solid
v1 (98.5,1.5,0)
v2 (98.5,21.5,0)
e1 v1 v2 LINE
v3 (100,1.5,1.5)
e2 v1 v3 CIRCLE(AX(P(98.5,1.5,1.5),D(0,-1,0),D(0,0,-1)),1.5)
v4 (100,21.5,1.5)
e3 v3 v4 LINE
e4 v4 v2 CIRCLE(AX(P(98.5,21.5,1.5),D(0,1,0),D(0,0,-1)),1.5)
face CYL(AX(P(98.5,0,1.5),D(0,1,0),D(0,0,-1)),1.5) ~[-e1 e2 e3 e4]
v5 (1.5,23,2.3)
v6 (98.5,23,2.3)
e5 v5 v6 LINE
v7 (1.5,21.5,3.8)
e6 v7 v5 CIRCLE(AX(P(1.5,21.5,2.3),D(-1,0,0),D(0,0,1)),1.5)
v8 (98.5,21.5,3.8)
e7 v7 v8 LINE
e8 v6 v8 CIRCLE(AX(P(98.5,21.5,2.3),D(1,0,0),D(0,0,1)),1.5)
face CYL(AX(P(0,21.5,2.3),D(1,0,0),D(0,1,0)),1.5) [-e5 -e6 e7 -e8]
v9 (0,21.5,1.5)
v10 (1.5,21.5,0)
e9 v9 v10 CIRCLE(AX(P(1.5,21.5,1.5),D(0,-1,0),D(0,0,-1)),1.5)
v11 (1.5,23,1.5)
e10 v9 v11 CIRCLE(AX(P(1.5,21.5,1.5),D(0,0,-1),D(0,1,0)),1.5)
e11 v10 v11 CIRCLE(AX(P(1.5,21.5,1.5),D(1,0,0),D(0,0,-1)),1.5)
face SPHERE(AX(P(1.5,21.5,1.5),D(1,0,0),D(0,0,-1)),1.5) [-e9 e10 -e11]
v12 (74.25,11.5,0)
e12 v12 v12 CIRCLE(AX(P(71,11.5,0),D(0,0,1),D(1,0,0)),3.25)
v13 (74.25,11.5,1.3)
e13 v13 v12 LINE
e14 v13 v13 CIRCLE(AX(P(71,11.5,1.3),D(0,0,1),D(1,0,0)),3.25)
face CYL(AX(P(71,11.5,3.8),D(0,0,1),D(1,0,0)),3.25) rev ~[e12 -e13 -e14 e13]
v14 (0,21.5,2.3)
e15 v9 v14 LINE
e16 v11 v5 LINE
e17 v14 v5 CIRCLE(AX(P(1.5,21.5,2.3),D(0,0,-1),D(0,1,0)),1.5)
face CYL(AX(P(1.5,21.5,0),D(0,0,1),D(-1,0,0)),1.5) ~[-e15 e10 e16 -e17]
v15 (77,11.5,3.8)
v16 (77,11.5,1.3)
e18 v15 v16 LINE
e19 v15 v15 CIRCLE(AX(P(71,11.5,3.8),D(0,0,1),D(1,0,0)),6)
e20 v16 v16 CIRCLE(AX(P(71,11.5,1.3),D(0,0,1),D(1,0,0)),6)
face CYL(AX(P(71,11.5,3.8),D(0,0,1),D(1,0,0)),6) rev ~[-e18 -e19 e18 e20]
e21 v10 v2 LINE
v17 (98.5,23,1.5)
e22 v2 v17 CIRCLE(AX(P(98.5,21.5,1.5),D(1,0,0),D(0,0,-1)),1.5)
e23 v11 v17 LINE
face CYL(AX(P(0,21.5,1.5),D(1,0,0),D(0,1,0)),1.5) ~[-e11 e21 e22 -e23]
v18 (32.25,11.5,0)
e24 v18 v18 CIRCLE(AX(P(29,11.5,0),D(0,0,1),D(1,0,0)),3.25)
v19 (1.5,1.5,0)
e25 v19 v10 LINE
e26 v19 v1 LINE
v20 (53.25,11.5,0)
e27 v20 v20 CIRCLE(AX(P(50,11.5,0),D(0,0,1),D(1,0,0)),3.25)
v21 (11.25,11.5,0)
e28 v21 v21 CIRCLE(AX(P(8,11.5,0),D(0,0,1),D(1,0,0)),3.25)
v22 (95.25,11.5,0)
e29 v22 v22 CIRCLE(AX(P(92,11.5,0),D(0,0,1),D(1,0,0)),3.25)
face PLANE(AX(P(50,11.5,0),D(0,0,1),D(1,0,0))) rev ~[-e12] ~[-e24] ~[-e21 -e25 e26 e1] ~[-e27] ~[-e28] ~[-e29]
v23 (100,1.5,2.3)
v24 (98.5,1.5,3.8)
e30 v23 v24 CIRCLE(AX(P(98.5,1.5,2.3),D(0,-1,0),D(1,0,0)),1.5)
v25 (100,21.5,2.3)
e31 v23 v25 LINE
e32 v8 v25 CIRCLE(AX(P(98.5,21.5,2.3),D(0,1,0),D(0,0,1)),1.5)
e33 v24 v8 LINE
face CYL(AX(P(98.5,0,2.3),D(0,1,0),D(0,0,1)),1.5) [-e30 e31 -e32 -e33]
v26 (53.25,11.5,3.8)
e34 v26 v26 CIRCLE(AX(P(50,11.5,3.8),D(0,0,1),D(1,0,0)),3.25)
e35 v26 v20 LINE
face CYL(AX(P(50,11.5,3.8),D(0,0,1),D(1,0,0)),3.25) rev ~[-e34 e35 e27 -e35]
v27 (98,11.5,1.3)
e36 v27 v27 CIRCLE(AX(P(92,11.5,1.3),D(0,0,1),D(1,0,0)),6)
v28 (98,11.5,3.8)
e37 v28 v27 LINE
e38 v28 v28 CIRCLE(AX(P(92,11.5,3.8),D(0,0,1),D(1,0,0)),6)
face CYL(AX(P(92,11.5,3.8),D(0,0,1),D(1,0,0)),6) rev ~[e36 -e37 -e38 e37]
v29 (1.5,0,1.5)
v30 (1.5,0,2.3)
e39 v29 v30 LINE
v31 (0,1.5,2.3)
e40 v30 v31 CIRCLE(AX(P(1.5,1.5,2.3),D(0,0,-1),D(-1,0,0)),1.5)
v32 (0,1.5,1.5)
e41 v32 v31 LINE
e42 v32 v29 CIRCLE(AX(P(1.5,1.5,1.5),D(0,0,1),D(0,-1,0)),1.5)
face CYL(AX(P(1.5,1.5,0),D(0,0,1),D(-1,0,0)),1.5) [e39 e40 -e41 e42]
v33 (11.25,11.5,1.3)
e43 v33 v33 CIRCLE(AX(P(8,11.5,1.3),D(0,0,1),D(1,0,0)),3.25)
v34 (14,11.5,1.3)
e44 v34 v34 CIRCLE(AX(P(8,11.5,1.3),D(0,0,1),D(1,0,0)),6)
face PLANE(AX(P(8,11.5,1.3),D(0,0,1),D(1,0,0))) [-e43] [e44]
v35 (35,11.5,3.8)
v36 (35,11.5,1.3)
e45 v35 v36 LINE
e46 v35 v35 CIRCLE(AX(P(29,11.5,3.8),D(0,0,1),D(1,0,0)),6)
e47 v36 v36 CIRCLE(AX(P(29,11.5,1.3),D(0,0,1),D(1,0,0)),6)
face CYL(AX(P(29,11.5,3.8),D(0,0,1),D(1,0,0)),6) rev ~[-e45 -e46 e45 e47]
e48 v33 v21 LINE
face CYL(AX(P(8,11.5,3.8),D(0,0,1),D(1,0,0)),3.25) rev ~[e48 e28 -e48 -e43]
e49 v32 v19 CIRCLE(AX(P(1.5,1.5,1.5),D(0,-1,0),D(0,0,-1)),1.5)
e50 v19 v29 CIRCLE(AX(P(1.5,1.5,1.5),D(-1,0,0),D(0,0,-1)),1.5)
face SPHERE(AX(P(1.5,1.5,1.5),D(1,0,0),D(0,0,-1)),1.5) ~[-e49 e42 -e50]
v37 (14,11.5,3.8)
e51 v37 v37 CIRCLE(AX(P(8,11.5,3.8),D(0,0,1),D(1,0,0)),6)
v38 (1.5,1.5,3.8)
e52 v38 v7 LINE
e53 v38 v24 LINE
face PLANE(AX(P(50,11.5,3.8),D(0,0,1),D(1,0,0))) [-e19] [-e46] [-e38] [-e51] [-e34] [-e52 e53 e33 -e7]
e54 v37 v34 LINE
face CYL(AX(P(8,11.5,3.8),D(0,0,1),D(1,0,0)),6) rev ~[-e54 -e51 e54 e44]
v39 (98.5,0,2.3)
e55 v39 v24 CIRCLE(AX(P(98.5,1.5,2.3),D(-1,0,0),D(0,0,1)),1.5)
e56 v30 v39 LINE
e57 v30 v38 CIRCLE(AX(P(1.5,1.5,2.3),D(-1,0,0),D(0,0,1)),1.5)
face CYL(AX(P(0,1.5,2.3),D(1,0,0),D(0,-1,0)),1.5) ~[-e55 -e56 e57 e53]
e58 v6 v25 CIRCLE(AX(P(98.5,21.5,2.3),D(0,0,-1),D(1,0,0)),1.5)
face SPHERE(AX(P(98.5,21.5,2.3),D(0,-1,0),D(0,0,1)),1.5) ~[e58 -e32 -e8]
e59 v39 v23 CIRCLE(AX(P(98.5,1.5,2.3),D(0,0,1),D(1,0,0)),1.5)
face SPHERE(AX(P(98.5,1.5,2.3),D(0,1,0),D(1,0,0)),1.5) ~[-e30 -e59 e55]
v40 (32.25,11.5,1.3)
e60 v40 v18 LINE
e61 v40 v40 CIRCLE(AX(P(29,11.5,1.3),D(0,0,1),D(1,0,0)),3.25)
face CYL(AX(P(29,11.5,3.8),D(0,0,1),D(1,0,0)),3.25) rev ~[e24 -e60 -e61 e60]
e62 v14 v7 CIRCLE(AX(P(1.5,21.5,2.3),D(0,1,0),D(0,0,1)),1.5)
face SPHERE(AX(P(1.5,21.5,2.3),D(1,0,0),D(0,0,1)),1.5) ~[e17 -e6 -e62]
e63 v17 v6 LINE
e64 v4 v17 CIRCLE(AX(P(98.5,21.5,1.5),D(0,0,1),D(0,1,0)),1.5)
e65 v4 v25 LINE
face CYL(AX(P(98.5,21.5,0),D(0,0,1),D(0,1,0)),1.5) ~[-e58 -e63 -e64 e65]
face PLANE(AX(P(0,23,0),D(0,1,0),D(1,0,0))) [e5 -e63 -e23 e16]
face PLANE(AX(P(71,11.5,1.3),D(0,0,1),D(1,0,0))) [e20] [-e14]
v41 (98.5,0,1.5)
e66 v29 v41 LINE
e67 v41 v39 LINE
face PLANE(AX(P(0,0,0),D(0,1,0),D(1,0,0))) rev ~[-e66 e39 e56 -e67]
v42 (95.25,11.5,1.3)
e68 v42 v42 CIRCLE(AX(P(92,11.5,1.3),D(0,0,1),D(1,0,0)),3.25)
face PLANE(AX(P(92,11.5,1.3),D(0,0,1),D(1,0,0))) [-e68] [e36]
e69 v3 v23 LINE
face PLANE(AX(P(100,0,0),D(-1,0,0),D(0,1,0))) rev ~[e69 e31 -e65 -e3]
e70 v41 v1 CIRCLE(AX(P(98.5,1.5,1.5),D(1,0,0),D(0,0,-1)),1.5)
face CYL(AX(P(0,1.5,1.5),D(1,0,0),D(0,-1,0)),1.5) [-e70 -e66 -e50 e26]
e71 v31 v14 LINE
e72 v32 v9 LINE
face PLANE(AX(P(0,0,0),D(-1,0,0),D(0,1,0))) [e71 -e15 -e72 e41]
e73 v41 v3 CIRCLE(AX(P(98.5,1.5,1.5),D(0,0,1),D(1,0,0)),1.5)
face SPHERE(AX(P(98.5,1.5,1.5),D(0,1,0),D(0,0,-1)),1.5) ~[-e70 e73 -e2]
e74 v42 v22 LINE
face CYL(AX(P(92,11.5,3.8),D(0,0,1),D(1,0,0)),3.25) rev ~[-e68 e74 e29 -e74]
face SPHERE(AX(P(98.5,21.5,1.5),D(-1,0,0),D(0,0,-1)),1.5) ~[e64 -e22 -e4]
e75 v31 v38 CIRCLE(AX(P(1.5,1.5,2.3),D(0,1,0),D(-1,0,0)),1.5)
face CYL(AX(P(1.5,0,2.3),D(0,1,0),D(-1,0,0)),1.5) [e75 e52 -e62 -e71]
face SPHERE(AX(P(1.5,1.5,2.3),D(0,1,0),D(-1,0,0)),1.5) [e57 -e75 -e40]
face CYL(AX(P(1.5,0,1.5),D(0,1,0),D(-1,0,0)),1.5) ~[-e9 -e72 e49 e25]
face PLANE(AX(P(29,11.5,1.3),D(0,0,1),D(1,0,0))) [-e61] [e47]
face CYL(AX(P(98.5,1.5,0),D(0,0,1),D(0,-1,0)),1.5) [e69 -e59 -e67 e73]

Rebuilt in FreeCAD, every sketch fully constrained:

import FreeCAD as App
import Part
import Sketcher
from FreeCAD import Vector
Q = App.Units.Quantity


def edges_at(feature, points):
    """Names of the edges that pass closest to the given points."""
    edges = feature.Shape.Edges
    near = lambda p: min(range(len(edges)), key=lambda i: edges[i].distToShape(Part.Vertex(*p))[0])
    return sorted({f"Edge{near(p) + 1}" for p in points})

doc = App.newDocument("Part")
body = doc.addObject("PartDesign::Body", "Body")

# Sketch on XY plane
sketch1 = doc.addObject("Sketcher::SketchObject", "Sketch")
body.addObject(sketch1)
sketch1.AttachmentSupport = (doc.XY_Plane, [""])
sketch1.MapMode = "FlatFace"
sketch1.addGeometry([
    Part.LineSegment(Vector(0, 23, 0), Vector(0, 0, 0)),
    Part.LineSegment(Vector(0, 0, 0), Vector(100, 0, 0)),
    Part.LineSegment(Vector(100, 0, 0), Vector(100, 23, 0)),
    Part.LineSegment(Vector(100, 23, 0), Vector(0, 23, 0)),
], False)
sketch1.addConstraint([
    Sketcher.Constraint("Coincident", 0, 2, 1, 1),
    Sketcher.Constraint("Coincident", 1, 2, 2, 1),
    Sketcher.Constraint("Coincident", 2, 2, 3, 1),
    Sketcher.Constraint("Coincident", 3, 2, 0, 1),
    Sketcher.Constraint("Vertical", 0),
    Sketcher.Constraint("Horizontal", 1),
    Sketcher.Constraint("Vertical", 2),
    Sketcher.Constraint("Horizontal", 3),
    Sketcher.Constraint("Coincident", 0, 2, -1, 1),
    Sketcher.Constraint("DistanceX", 1, 1, 1, 2, Q("100 mm")),
    Sketcher.Constraint("DistanceY", 0, 2, 0, 1, Q("23 mm")),
])
pad1 = doc.addObject("PartDesign::Pad", "Pad")
body.addObject(pad1)
pad1.Profile = sketch1
pad1.Length = 3.8

# Sketch on XY plane
sketch2 = doc.addObject("Sketcher::SketchObject", "Sketch001")
body.addObject(sketch2)
sketch2.AttachmentSupport = (doc.XY_Plane, [""])
sketch2.MapMode = "FlatFace"
sketch2.AttachmentOffset = App.Placement(Vector(0, 0, 3.8), App.Rotation())
sketch2.addGeometry([
    Part.Circle(Vector(8, 11.5, 0), Vector(0, 0, 1), 3.2),  # 0
    Part.Circle(Vector(29, 11.5, 0), Vector(0, 0, 1), 3.2),  # 1
    Part.Circle(Vector(50, 11.5, 0), Vector(0, 0, 1), 3.2),  # 2
    Part.Circle(Vector(71, 11.5, 0), Vector(0, 0, 1), 3.2),  # 3
    Part.Circle(Vector(92, 11.5, 0), Vector(0, 0, 1), 3.2),  # 4
], False)
sketch2.addConstraint([
    Sketcher.Constraint("Equal", 0, 1),
    Sketcher.Constraint("Equal", 1, 2),
    Sketcher.Constraint("Equal", 2, 3),
    Sketcher.Constraint("Equal", 3, 4),
    Sketcher.Constraint("Horizontal", 0, 3, 1, 3),
    Sketcher.Constraint("Horizontal", 1, 3, 2, 3),
    Sketcher.Constraint("Horizontal", 2, 3, 3, 3),
    Sketcher.Constraint("Horizontal", 3, 3, 4, 3),
    Sketcher.Constraint("Diameter", 0, Q("6.5 mm")),
    Sketcher.Constraint("DistanceX", -1, 1, 0, 3, Q("8 mm")),
    Sketcher.Constraint("DistanceX", -1, 1, 1, 3, Q("29 mm")),
    Sketcher.Constraint("DistanceX", -1, 1, 2, 3, Q("50 mm")),
    Sketcher.Constraint("DistanceX", -1, 1, 3, 3, Q("71 mm")),
    Sketcher.Constraint("DistanceX", -1, 1, 4, 3, Q("92 mm")),
    Sketcher.Constraint("DistanceY", -1, 1, 0, 3, Q("11.5 mm")),
])
pocket1 = doc.addObject("PartDesign::Pocket", "Pocket")
body.addObject(pocket1)
pocket1.Profile = sketch2
pocket1.Type = "ThroughAll"

# Sketch on XY plane
sketch3 = doc.addObject("Sketcher::SketchObject", "Sketch002")
body.addObject(sketch3)
sketch3.AttachmentSupport = (doc.XY_Plane, [""])
sketch3.MapMode = "FlatFace"
sketch3.AttachmentOffset = App.Placement(Vector(0, 0, 3.8), App.Rotation())
sketch3.addGeometry([
    Part.Circle(Vector(8, 12, 0), Vector(0, 0, 1), 6),
    Part.Circle(Vector(29, 12, 0), Vector(0, 0, 1), 6),
    Part.Circle(Vector(71, 12, 0), Vector(0, 0, 1), 6),
    Part.Circle(Vector(92, 12, 0), Vector(0, 0, 1), 6),
], False)
sketch3.addConstraint([
    Sketcher.Constraint("Equal", 0, 1),
    Sketcher.Constraint("Equal", 1, 2),
    Sketcher.Constraint("Equal", 2, 3),
    Sketcher.Constraint("Horizontal", 0, 3, 1, 3),
    Sketcher.Constraint("Horizontal", 1, 3, 2, 3),
    Sketcher.Constraint("Horizontal", 2, 3, 3, 3),
    Sketcher.Constraint("Diameter", 0, Q("12 mm")),
    Sketcher.Constraint("DistanceX", -1, 1, 0, 3, Q("8 mm")),
    Sketcher.Constraint("DistanceX", -1, 1, 1, 3, Q("29 mm")),
    Sketcher.Constraint("DistanceX", -1, 1, 2, 3, Q("71 mm")),
    Sketcher.Constraint("DistanceX", -1, 1, 3, 3, Q("92 mm")),
    Sketcher.Constraint("DistanceY", -1, 1, 0, 3, Q("11.5 mm")),
])
pocket2 = doc.addObject("PartDesign::Pocket", "Pocket001")
body.addObject(pocket2)
pocket2.Profile = sketch3
pocket2.Length = 2.5
doc.recompute()

fillet = doc.addObject("PartDesign::Fillet", "Fillet")
body.addObject(fillet)
fillet.Base = (pocket2, edges_at(pocket2, [
    (100, 11.5, 3.8),
    (50, 23, 3.8),
    (0, 11.5, 3.8),
    (50, 23, 0),
    (100, 11.5, 0),
    (50, 0, 0),
    (0, 11.5, 0),
    (0, 23, 1.9),
    (100, 23, 1.9),
    (100, 0, 1.9),
    (0, 0, 1.9),
    (50, 0, 3.8),
]))
fillet.Radius = 1.5

doc.recompute()
